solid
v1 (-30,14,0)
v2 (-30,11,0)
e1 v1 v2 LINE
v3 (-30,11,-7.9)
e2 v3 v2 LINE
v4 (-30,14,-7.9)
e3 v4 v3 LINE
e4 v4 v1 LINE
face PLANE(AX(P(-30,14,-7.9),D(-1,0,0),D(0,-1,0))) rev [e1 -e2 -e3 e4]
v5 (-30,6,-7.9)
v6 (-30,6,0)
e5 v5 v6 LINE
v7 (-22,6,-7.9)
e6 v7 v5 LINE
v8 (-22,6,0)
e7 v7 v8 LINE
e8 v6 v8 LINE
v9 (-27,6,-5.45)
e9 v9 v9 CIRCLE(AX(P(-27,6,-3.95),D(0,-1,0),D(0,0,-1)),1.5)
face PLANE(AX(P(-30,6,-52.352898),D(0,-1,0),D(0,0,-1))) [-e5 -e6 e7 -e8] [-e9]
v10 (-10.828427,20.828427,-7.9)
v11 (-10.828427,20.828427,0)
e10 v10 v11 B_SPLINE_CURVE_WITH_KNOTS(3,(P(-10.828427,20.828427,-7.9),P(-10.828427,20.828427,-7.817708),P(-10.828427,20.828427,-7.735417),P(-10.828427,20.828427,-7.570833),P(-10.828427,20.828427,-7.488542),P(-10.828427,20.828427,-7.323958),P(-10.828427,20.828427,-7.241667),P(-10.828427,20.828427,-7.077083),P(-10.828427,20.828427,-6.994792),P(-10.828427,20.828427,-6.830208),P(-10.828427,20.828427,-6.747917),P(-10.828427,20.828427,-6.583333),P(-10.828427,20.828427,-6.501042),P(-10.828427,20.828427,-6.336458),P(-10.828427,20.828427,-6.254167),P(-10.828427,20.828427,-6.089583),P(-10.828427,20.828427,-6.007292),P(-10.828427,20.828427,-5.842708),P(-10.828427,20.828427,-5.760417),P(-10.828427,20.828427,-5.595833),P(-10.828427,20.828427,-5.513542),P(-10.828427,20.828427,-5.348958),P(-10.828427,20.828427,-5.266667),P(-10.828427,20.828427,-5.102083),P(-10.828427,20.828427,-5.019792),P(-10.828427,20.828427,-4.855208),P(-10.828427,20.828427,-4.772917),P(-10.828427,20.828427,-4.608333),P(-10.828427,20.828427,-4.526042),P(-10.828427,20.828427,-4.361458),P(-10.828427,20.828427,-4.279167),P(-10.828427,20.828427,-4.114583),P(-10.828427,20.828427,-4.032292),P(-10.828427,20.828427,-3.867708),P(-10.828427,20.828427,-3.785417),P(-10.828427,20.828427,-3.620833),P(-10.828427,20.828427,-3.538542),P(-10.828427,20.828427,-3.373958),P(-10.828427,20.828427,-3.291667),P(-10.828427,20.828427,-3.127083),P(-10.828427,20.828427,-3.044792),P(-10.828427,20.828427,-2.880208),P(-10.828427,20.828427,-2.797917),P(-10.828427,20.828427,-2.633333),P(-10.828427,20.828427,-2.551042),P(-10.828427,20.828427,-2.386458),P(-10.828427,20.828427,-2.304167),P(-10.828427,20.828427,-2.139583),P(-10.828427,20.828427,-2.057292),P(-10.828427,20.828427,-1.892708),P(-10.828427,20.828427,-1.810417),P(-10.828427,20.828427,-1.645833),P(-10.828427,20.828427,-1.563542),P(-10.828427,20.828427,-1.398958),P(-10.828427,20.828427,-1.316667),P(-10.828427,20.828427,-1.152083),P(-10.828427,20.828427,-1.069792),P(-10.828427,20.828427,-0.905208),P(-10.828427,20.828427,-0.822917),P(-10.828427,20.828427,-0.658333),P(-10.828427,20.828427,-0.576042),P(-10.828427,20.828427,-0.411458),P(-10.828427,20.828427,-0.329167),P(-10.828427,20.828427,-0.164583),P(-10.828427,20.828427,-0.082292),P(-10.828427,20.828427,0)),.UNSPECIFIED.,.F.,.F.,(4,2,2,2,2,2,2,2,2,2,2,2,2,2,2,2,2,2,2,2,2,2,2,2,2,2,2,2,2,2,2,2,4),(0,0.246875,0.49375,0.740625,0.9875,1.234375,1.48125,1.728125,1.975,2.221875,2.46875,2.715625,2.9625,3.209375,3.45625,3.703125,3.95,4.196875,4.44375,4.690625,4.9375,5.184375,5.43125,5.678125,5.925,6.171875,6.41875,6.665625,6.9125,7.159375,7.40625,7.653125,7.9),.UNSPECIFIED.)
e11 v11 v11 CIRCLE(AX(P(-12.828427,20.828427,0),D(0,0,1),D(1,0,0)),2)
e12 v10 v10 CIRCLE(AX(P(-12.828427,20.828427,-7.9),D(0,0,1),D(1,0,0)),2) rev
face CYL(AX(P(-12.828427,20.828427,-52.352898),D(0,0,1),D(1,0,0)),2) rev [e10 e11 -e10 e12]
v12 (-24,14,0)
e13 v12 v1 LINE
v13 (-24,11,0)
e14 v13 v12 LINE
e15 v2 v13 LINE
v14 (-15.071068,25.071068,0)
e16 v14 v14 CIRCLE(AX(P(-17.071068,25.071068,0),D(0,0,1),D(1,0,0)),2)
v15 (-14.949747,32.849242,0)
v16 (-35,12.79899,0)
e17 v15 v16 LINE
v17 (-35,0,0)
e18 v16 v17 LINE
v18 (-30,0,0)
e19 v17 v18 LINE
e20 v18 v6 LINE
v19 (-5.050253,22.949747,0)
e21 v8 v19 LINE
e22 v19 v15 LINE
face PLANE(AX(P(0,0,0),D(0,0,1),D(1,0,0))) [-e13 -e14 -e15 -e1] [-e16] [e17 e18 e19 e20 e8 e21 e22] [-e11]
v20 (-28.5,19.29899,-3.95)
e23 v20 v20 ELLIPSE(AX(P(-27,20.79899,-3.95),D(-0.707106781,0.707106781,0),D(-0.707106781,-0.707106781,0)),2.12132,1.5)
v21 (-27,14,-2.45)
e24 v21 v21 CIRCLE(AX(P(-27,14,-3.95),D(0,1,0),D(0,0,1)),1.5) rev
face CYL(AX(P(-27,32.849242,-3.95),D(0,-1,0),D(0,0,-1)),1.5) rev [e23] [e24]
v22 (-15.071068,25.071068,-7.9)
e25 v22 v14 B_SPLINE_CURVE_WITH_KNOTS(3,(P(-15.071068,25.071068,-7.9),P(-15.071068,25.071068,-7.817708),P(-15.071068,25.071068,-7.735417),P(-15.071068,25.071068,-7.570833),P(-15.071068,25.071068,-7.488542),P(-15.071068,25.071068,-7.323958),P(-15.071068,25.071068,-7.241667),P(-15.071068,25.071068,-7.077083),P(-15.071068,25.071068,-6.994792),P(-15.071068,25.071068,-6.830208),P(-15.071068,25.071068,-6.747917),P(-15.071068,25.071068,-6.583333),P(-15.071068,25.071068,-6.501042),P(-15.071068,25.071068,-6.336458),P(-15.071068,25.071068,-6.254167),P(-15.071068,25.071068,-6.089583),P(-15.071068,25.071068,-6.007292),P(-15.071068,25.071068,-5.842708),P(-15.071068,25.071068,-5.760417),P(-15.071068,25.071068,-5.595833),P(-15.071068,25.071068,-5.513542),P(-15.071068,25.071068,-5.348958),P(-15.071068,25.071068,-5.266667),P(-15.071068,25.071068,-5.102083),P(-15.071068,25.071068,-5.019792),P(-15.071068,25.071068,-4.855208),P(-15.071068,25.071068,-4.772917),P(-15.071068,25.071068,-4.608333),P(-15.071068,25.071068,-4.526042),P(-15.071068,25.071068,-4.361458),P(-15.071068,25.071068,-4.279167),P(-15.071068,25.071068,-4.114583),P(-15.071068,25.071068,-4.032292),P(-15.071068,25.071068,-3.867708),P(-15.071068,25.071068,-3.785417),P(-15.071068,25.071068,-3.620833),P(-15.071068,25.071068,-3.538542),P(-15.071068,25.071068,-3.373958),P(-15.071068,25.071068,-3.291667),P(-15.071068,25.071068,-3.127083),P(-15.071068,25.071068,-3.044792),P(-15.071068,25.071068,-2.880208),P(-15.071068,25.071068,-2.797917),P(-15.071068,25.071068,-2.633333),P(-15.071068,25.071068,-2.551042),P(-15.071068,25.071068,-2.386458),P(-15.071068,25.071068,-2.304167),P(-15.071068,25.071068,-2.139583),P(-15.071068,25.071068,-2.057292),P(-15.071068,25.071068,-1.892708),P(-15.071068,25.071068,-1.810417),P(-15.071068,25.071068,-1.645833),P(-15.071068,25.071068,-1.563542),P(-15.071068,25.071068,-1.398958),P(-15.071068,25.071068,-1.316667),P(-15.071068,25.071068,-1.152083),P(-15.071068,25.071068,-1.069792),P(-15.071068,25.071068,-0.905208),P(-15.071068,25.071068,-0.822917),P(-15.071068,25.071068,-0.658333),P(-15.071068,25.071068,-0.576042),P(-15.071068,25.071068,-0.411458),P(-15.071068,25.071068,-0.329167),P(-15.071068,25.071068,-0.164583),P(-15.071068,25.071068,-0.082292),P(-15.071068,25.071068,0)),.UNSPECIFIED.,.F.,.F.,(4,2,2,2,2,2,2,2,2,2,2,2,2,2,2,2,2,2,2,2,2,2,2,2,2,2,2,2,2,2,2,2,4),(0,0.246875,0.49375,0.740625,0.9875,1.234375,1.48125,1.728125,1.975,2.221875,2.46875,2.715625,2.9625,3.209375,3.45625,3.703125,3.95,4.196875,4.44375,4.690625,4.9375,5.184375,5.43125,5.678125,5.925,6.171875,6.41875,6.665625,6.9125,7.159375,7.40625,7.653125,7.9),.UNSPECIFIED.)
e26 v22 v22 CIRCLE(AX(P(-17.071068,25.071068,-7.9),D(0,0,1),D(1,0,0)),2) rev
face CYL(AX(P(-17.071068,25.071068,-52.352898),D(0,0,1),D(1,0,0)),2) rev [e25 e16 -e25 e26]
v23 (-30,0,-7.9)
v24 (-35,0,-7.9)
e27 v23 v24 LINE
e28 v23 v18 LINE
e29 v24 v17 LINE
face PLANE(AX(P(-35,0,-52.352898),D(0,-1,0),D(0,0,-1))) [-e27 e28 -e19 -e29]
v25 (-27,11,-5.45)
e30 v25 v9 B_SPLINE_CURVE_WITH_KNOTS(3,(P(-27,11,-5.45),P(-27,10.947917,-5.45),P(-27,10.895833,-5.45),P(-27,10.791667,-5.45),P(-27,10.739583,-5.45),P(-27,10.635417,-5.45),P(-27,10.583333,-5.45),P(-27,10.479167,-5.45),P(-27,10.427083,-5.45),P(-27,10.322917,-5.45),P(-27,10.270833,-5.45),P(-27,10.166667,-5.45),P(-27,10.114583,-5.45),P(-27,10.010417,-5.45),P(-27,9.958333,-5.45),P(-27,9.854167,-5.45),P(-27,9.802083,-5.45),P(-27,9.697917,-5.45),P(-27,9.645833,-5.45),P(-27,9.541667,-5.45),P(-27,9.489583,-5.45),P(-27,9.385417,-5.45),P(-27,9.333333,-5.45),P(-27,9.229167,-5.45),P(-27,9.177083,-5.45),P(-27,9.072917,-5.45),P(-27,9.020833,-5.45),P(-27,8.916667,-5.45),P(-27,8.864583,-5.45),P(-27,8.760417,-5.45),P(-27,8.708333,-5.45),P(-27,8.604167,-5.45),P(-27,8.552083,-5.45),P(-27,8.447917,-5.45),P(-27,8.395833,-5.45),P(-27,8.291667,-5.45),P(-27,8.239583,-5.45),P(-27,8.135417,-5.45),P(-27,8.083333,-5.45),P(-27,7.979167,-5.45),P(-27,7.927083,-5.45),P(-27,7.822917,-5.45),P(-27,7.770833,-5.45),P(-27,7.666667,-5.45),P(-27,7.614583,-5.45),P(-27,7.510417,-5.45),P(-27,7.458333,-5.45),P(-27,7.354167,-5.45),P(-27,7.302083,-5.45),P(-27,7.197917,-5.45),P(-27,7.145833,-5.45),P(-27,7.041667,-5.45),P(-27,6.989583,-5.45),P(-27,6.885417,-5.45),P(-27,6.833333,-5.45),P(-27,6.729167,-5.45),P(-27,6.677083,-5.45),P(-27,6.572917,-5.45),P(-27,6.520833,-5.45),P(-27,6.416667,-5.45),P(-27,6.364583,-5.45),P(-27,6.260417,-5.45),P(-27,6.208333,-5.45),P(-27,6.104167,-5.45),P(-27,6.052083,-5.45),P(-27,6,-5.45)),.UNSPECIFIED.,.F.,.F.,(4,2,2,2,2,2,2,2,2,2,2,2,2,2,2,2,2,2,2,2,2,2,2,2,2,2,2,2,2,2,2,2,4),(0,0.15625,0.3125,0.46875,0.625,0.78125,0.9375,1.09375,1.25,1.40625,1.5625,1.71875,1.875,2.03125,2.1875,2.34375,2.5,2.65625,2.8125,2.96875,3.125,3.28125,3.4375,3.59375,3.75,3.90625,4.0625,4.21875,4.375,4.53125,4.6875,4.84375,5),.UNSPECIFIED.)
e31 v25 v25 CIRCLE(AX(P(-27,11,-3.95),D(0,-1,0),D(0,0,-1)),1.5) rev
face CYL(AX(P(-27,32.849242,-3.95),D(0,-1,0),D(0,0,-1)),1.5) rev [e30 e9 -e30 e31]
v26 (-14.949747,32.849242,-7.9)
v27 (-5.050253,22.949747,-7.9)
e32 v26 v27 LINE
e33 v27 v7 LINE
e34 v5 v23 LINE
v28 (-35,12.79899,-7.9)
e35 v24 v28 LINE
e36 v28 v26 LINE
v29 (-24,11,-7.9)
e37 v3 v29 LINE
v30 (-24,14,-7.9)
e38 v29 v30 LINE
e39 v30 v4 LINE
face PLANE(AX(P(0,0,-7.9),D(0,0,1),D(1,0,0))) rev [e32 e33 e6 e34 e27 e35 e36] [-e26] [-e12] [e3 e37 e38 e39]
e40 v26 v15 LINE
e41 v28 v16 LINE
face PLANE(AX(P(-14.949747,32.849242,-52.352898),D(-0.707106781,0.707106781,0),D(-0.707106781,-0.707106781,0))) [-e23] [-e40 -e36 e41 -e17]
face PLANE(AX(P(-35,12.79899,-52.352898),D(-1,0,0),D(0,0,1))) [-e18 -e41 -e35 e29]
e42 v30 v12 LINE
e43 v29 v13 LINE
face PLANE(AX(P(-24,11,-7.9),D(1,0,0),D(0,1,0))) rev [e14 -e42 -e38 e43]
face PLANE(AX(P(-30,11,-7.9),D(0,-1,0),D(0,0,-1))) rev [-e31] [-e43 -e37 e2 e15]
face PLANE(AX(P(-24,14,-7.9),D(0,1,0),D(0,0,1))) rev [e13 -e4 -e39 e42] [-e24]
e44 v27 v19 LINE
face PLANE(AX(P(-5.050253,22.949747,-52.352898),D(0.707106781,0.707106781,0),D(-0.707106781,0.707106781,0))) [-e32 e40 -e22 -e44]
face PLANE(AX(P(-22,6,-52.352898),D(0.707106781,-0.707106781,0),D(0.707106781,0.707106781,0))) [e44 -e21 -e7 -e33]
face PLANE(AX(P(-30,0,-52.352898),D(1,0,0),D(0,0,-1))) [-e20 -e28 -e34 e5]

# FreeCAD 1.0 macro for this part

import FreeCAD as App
import Part
import Sketcher

V = App.Vector
Q = App.Units.Quantity

doc = App.newDocument("Part")
body = doc.addObject("PartDesign::Body", "Body")

sketch1 = body.newObject("Sketcher::SketchObject", "Sketch")
sketch1.AttachmentSupport = (doc.getObject("XY_Plane"), [""])
sketch1.MapMode = "FlatFace"
sketch1.addGeometry(Part.LineSegment(V(-30, 0, 0), V(-30, 6, 0)), False)
sketch1.addGeometry(Part.LineSegment(V(-30, 6, 0), V(-22, 6, 0)), False)
sketch1.addGeometry(Part.LineSegment(V(-22, 6, 0), V(-5.1, 22.9, 0)), False)
sketch1.addGeometry(Part.LineSegment(V(-5.1, 22.9, 0), V(-14.9, 32.8, 0)), False)
sketch1.addGeometry(Part.LineSegment(V(-14.9, 32.8, 0), V(-35, 12.8, 0)), False)
sketch1.addGeometry(Part.LineSegment(V(-35, 12.8, 0), V(-35, 0, 0)), False)
sketch1.addGeometry(Part.LineSegment(V(-35, 0, 0), V(-30, 0, 0)), False)
sketch1.addGeometry(Part.Circle(V(-12.8, 20.8, 0), V(0, 0, 1), 2), False)
sketch1.addGeometry(Part.Circle(V(-17.1, 25.1, 0), V(0, 0, 1), 2), False)
sketch1.addConstraint(Sketcher.Constraint("Coincident", 0, 2, 1, 1))
sketch1.addConstraint(Sketcher.Constraint("Coincident", 1, 2, 2, 1))
sketch1.addConstraint(Sketcher.Constraint("Coincident", 2, 2, 3, 1))
sketch1.addConstraint(Sketcher.Constraint("Coincident", 3, 2, 4, 1))
sketch1.addConstraint(Sketcher.Constraint("Coincident", 4, 2, 5, 1))
sketch1.addConstraint(Sketcher.Constraint("Coincident", 5, 2, 6, 1))
sketch1.addConstraint(Sketcher.Constraint("Coincident", 6, 2, 0, 1))
sketch1.addConstraint(Sketcher.Constraint("Vertical", 0))
sketch1.addConstraint(Sketcher.Constraint("Horizontal", 1))
sketch1.addConstraint(Sketcher.Constraint("Vertical", 5))
sketch1.addConstraint(Sketcher.Constraint("Horizontal", 6))
sketch1.addConstraint(Sketcher.Constraint("Equal", 7, 8))
sketch1.addConstraint(Sketcher.Constraint("PointOnObject", 5, 2, -1))
sketch1.addConstraint(Sketcher.Constraint("Perpendicular", 2, 3))
sketch1.addConstraint(Sketcher.Constraint("Perpendicular", 3, 4))
sketch1.addConstraint(Sketcher.Constraint("Diameter", 7, Q("4 mm")))
sketch1.addConstraint(Sketcher.Constraint("DistanceX", 1, 1, 1, 2, Q("8 mm")))
sketch1.addConstraint(Sketcher.Constraint("DistanceX", 6, 1, 6, 2, Q("5 mm")))
sketch1.addConstraint(Sketcher.Constraint("DistanceY", 0, 1, 0, 2, Q("6 mm")))
sketch1.addConstraint(Sketcher.Constraint("Angle", 2, Q("45 deg")))
sketch1.addConstraint(Sketcher.Constraint("Distance", 3, Q("14 mm")))
sketch1.addConstraint(Sketcher.Constraint("DistanceX", 0, 2, -1, 1, Q("30 mm")))
sketch1.addConstraint(Sketcher.Constraint("Distance", 4, Q("28.355339 mm")))
sketch1.addConstraint(Sketcher.Constraint("DistanceX", 8, 3, 7, 3, Q("4.242641 mm")))
sketch1.addConstraint(Sketcher.Constraint("DistanceY", 7, 3, 8, 3, Q("4.242641 mm")))
sketch1.addConstraint(Sketcher.Constraint("DistanceY", 7, 3, 2, 2, Q("2.12132 mm")))
sketch1.addConstraint(Sketcher.Constraint("DistanceX", 8, 3, 3, 2, Q("2.12132 mm")))
pad1 = body.newObject("PartDesign::Pad", "Pad")
pad1.Profile = sketch1
pad1.Length = 7.9
pad1.Reversed = True

sketch2 = body.newObject("Sketcher::SketchObject", "Sketch001")
sketch2.AttachmentSupport = (doc.getObject("XZ_Plane"), [""])
sketch2.MapMode = "FlatFace"
sketch2.AttachmentOffset = App.Placement(V(0, 0, -6), App.Rotation())
sketch2.addGeometry(Part.Circle(V(-27, -4, 0), V(0, 0, 1), 1.5), False)
sketch2.addConstraint(Sketcher.Constraint("Diameter", 0, Q("3 mm")))
sketch2.addConstraint(Sketcher.Constraint("DistanceX", 0, 3, -1, 1, Q("27 mm")))
sketch2.addConstraint(Sketcher.Constraint("DistanceY", 0, 3, -1, 1, Q("3.95 mm")))
pocket1 = body.newObject("PartDesign::Pocket", "Pocket")
pocket1.Profile = sketch2
pocket1.Type = "ThroughAll"

sketch3 = body.newObject("Sketcher::SketchObject", "Sketch002")
sketch3.AttachmentSupport = (doc.getObject("XY_Plane"), [""])
sketch3.MapMode = "FlatFace"
sketch3.addGeometry(Part.LineSegment(V(-30, 14, 0), V(-30, 11, 0)), False)
sketch3.addGeometry(Part.LineSegment(V(-30, 11, 0), V(-24, 11, 0)), False)
sketch3.addGeometry(Part.LineSegment(V(-24, 11, 0), V(-24, 14, 0)), False)
sketch3.addGeometry(Part.LineSegment(V(-24, 14, 0), V(-30, 14, 0)), False)
sketch3.addConstraint(Sketcher.Constraint("Coincident", 0, 2, 1, 1))
sketch3.addConstraint(Sketcher.Constraint("Coincident", 1, 2, 2, 1))
sketch3.addConstraint(Sketcher.Constraint("Coincident", 2, 2, 3, 1))
sketch3.addConstraint(Sketcher.Constraint("Coincident", 3, 2, 0, 1))
sketch3.addConstraint(Sketcher.Constraint("Vertical", 0))
sketch3.addConstraint(Sketcher.Constraint("Horizontal", 1))
sketch3.addConstraint(Sketcher.Constraint("Vertical", 2))
sketch3.addConstraint(Sketcher.Constraint("Horizontal", 3))
sketch3.addConstraint(Sketcher.Constraint("DistanceX", 1, 1, 1, 2, Q("6 mm")))
sketch3.addConstraint(Sketcher.Constraint("DistanceY", 0, 2, 0, 1, Q("3 mm")))
sketch3.addConstraint(Sketcher.Constraint("DistanceX", 0, 2, -1, 1, Q("30 mm")))
sketch3.addConstraint(Sketcher.Constraint("DistanceY", -1, 1, 0, 2, Q("11 mm")))
pocket2 = body.newObject("PartDesign::Pocket", "Pocket001")
pocket2.Profile = sketch3
pocket2.Type = "ThroughAll"

doc.recompute()
